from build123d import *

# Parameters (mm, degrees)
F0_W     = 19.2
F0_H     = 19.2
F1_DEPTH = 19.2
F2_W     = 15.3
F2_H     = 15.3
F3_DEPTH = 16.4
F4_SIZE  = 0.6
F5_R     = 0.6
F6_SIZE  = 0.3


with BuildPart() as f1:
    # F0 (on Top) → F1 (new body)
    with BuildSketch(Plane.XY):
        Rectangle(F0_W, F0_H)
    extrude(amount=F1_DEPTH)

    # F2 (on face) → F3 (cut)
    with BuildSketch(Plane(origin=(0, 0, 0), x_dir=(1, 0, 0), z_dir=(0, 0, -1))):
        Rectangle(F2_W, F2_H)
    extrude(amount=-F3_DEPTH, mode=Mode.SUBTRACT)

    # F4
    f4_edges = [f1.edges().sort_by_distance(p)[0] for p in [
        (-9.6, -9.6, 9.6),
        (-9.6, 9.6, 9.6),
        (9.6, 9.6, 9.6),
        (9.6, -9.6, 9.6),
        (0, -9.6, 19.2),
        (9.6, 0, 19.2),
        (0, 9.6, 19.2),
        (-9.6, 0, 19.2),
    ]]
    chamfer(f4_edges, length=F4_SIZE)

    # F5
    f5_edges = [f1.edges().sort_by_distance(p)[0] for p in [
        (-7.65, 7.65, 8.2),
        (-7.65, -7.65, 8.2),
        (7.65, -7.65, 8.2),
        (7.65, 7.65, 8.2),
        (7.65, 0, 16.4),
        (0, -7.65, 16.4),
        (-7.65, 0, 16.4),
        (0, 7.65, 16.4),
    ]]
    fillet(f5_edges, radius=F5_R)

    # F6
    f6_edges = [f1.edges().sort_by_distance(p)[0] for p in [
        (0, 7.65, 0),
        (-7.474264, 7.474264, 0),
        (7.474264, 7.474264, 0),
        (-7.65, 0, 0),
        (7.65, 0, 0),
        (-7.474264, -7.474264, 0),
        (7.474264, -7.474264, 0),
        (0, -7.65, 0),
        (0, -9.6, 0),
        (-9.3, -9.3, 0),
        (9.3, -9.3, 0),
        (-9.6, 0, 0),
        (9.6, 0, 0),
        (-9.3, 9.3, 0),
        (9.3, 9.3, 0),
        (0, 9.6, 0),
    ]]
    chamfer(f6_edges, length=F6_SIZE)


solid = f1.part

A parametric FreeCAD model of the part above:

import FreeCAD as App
import Part
import Sketcher
Q = App.Units.Quantity


def edges_at(feature, points):
    """Names of the edges that pass closest to the given points."""
    edges = feature.Shape.Edges
    near = lambda p: min(range(len(edges)), key=lambda i: edges[i].distToShape(Part.Vertex(*p))[0])
    return sorted({f"Edge{near(p) + 1}" for p in points})

doc = App.newDocument("Part")
body = doc.addObject("PartDesign::Body", "Body")

# Sketch on XY plane
sketch1 = body.newObject("Sketcher::SketchObject", "Sketch")
sketch1.AttachmentSupport = (doc.getObject("XY_Plane"), [""])
sketch1.MapMode = "FlatFace"
sketch1.addGeometry(Part.LineSegment(App.Vector(-10, 10, 0), App.Vector(-10, -10, 0)), False)
sketch1.addGeometry(Part.LineSegment(App.Vector(-10, -10, 0), App.Vector(10, -10, 0)), False)
sketch1.addGeometry(Part.LineSegment(App.Vector(10, -10, 0), App.Vector(10, 10, 0)), False)
sketch1.addGeometry(Part.LineSegment(App.Vector(10, 10, 0), App.Vector(-10, 10, 0)), False)
sketch1.addConstraint(Sketcher.Constraint("Coincident", 0, 2, 1, 1))
sketch1.addConstraint(Sketcher.Constraint("Coincident", 1, 2, 2, 1))
sketch1.addConstraint(Sketcher.Constraint("Coincident", 2, 2, 3, 1))
sketch1.addConstraint(Sketcher.Constraint("Coincident", 3, 2, 0, 1))
sketch1.addConstraint(Sketcher.Constraint("Vertical", 0))
sketch1.addConstraint(Sketcher.Constraint("Horizontal", 1))
sketch1.addConstraint(Sketcher.Constraint("Vertical", 2))
sketch1.addConstraint(Sketcher.Constraint("Horizontal", 3))
sketch1.addConstraint(Sketcher.Constraint("Symmetric", 0, 2, 2, 2, -1, 1))
sketch1.addConstraint(Sketcher.Constraint("Equal", 3, 0))
sketch1.addConstraint(Sketcher.Constraint("DistanceX", 1, 1, 1, 2, Q("19.2 mm")))
pad1 = body.newObject("PartDesign::Pad", "Pad")
pad1.Profile = sketch1
pad1.Length = 19.2

# Sketch on XY plane
sketch2 = body.newObject("Sketcher::SketchObject", "Sketch001")
sketch2.AttachmentSupport = (doc.getObject("XY_Plane"), [""])
sketch2.MapMode = "FlatFace"
sketch2.addGeometry(Part.LineSegment(App.Vector(-8, -8, 0), App.Vector(-8, 8, 0)), False)
sketch2.addGeometry(Part.LineSegment(App.Vector(-8, 8, 0), App.Vector(8, 8, 0)), False)
sketch2.addGeometry(Part.LineSegment(App.Vector(8, 8, 0), App.Vector(8, -8, 0)), False)
sketch2.addGeometry(Part.LineSegment(App.Vector(8, -8, 0), App.Vector(-8, -8, 0)), False)
sketch2.addConstraint(Sketcher.Constraint("Coincident", 0, 2, 1, 1))
sketch2.addConstraint(Sketcher.Constraint("Coincident", 1, 2, 2, 1))
sketch2.addConstraint(Sketcher.Constraint("Coincident", 2, 2, 3, 1))
sketch2.addConstraint(Sketcher.Constraint("Coincident", 3, 2, 0, 1))
sketch2.addConstraint(Sketcher.Constraint("Vertical", 0))
sketch2.addConstraint(Sketcher.Constraint("Horizontal", 1))
sketch2.addConstraint(Sketcher.Constraint("Vertical", 2))
sketch2.addConstraint(Sketcher.Constraint("Horizontal", 3))
sketch2.addConstraint(Sketcher.Constraint("Symmetric", 0, 2, 2, 2, -1, 1))
sketch2.addConstraint(Sketcher.Constraint("Equal", 3, 0))
sketch2.addConstraint(Sketcher.Constraint("DistanceX", 1, 1, 1, 2, Q("15.3 mm")))
pocket1 = body.newObject("PartDesign::Pocket", "Pocket")
pocket1.Profile = sketch2
pocket1.Length = 16.4
pocket1.Reversed = True
doc.recompute()

chamfer = body.newObject("PartDesign::Chamfer", "Chamfer")
chamfer.Base = (pocket1, edges_at(pocket1, [
    (-9.6, -9.6, 9.6),
    (-9.6, 9.6, 9.6),
    (9.6, 9.6, 9.6),
    (9.6, -9.6, 9.6),
    (0, -9.6, 19.2),
    (9.6, 0, 19.2),
    (0, 9.6, 19.2),
    (-9.6, 0, 19.2),
]))
chamfer.Size = 0.6
doc.recompute()

fillet = body.newObject("PartDesign::Fillet", "Fillet")
fillet.Base = (chamfer, edges_at(chamfer, [
    (-7.65, 7.65, 8.2),
    (-7.65, -7.65, 8.2),
    (7.65, -7.65, 8.2),
    (7.65, 7.65, 8.2),
    (7.65, 0, 16.4),
    (0, -7.65, 16.4),
    (-7.65, 0, 16.4),
    (0, 7.65, 16.4),
]))
fillet.Radius = 0.6
doc.recompute()

chamfer2 = body.newObject("PartDesign::Chamfer", "Chamfer001")
chamfer2.Base = (fillet, edges_at(fillet, [
    (0, 7.65, 0),
    (-7.474, 7.474, 0),
    (7.474, 7.474, 0),
    (-7.65, 0, 0),
    (7.65, 0, 0),
    (-7.474, -7.474, 0),
    (7.474, -7.474, 0),
    (0, -7.65, 0),
    (0, -9.6, 0),
    (-9.3, -9.3, 0),
    (9.3, -9.3, 0),
    (-9.6, 0, 0),
    (9.6, 0, 0),
    (-9.3, 9.3, 0),
    (9.3, 9.3, 0),
    (0, 9.6, 0),
]))
chamfer2.Size = 0.3

doc.recompute()
